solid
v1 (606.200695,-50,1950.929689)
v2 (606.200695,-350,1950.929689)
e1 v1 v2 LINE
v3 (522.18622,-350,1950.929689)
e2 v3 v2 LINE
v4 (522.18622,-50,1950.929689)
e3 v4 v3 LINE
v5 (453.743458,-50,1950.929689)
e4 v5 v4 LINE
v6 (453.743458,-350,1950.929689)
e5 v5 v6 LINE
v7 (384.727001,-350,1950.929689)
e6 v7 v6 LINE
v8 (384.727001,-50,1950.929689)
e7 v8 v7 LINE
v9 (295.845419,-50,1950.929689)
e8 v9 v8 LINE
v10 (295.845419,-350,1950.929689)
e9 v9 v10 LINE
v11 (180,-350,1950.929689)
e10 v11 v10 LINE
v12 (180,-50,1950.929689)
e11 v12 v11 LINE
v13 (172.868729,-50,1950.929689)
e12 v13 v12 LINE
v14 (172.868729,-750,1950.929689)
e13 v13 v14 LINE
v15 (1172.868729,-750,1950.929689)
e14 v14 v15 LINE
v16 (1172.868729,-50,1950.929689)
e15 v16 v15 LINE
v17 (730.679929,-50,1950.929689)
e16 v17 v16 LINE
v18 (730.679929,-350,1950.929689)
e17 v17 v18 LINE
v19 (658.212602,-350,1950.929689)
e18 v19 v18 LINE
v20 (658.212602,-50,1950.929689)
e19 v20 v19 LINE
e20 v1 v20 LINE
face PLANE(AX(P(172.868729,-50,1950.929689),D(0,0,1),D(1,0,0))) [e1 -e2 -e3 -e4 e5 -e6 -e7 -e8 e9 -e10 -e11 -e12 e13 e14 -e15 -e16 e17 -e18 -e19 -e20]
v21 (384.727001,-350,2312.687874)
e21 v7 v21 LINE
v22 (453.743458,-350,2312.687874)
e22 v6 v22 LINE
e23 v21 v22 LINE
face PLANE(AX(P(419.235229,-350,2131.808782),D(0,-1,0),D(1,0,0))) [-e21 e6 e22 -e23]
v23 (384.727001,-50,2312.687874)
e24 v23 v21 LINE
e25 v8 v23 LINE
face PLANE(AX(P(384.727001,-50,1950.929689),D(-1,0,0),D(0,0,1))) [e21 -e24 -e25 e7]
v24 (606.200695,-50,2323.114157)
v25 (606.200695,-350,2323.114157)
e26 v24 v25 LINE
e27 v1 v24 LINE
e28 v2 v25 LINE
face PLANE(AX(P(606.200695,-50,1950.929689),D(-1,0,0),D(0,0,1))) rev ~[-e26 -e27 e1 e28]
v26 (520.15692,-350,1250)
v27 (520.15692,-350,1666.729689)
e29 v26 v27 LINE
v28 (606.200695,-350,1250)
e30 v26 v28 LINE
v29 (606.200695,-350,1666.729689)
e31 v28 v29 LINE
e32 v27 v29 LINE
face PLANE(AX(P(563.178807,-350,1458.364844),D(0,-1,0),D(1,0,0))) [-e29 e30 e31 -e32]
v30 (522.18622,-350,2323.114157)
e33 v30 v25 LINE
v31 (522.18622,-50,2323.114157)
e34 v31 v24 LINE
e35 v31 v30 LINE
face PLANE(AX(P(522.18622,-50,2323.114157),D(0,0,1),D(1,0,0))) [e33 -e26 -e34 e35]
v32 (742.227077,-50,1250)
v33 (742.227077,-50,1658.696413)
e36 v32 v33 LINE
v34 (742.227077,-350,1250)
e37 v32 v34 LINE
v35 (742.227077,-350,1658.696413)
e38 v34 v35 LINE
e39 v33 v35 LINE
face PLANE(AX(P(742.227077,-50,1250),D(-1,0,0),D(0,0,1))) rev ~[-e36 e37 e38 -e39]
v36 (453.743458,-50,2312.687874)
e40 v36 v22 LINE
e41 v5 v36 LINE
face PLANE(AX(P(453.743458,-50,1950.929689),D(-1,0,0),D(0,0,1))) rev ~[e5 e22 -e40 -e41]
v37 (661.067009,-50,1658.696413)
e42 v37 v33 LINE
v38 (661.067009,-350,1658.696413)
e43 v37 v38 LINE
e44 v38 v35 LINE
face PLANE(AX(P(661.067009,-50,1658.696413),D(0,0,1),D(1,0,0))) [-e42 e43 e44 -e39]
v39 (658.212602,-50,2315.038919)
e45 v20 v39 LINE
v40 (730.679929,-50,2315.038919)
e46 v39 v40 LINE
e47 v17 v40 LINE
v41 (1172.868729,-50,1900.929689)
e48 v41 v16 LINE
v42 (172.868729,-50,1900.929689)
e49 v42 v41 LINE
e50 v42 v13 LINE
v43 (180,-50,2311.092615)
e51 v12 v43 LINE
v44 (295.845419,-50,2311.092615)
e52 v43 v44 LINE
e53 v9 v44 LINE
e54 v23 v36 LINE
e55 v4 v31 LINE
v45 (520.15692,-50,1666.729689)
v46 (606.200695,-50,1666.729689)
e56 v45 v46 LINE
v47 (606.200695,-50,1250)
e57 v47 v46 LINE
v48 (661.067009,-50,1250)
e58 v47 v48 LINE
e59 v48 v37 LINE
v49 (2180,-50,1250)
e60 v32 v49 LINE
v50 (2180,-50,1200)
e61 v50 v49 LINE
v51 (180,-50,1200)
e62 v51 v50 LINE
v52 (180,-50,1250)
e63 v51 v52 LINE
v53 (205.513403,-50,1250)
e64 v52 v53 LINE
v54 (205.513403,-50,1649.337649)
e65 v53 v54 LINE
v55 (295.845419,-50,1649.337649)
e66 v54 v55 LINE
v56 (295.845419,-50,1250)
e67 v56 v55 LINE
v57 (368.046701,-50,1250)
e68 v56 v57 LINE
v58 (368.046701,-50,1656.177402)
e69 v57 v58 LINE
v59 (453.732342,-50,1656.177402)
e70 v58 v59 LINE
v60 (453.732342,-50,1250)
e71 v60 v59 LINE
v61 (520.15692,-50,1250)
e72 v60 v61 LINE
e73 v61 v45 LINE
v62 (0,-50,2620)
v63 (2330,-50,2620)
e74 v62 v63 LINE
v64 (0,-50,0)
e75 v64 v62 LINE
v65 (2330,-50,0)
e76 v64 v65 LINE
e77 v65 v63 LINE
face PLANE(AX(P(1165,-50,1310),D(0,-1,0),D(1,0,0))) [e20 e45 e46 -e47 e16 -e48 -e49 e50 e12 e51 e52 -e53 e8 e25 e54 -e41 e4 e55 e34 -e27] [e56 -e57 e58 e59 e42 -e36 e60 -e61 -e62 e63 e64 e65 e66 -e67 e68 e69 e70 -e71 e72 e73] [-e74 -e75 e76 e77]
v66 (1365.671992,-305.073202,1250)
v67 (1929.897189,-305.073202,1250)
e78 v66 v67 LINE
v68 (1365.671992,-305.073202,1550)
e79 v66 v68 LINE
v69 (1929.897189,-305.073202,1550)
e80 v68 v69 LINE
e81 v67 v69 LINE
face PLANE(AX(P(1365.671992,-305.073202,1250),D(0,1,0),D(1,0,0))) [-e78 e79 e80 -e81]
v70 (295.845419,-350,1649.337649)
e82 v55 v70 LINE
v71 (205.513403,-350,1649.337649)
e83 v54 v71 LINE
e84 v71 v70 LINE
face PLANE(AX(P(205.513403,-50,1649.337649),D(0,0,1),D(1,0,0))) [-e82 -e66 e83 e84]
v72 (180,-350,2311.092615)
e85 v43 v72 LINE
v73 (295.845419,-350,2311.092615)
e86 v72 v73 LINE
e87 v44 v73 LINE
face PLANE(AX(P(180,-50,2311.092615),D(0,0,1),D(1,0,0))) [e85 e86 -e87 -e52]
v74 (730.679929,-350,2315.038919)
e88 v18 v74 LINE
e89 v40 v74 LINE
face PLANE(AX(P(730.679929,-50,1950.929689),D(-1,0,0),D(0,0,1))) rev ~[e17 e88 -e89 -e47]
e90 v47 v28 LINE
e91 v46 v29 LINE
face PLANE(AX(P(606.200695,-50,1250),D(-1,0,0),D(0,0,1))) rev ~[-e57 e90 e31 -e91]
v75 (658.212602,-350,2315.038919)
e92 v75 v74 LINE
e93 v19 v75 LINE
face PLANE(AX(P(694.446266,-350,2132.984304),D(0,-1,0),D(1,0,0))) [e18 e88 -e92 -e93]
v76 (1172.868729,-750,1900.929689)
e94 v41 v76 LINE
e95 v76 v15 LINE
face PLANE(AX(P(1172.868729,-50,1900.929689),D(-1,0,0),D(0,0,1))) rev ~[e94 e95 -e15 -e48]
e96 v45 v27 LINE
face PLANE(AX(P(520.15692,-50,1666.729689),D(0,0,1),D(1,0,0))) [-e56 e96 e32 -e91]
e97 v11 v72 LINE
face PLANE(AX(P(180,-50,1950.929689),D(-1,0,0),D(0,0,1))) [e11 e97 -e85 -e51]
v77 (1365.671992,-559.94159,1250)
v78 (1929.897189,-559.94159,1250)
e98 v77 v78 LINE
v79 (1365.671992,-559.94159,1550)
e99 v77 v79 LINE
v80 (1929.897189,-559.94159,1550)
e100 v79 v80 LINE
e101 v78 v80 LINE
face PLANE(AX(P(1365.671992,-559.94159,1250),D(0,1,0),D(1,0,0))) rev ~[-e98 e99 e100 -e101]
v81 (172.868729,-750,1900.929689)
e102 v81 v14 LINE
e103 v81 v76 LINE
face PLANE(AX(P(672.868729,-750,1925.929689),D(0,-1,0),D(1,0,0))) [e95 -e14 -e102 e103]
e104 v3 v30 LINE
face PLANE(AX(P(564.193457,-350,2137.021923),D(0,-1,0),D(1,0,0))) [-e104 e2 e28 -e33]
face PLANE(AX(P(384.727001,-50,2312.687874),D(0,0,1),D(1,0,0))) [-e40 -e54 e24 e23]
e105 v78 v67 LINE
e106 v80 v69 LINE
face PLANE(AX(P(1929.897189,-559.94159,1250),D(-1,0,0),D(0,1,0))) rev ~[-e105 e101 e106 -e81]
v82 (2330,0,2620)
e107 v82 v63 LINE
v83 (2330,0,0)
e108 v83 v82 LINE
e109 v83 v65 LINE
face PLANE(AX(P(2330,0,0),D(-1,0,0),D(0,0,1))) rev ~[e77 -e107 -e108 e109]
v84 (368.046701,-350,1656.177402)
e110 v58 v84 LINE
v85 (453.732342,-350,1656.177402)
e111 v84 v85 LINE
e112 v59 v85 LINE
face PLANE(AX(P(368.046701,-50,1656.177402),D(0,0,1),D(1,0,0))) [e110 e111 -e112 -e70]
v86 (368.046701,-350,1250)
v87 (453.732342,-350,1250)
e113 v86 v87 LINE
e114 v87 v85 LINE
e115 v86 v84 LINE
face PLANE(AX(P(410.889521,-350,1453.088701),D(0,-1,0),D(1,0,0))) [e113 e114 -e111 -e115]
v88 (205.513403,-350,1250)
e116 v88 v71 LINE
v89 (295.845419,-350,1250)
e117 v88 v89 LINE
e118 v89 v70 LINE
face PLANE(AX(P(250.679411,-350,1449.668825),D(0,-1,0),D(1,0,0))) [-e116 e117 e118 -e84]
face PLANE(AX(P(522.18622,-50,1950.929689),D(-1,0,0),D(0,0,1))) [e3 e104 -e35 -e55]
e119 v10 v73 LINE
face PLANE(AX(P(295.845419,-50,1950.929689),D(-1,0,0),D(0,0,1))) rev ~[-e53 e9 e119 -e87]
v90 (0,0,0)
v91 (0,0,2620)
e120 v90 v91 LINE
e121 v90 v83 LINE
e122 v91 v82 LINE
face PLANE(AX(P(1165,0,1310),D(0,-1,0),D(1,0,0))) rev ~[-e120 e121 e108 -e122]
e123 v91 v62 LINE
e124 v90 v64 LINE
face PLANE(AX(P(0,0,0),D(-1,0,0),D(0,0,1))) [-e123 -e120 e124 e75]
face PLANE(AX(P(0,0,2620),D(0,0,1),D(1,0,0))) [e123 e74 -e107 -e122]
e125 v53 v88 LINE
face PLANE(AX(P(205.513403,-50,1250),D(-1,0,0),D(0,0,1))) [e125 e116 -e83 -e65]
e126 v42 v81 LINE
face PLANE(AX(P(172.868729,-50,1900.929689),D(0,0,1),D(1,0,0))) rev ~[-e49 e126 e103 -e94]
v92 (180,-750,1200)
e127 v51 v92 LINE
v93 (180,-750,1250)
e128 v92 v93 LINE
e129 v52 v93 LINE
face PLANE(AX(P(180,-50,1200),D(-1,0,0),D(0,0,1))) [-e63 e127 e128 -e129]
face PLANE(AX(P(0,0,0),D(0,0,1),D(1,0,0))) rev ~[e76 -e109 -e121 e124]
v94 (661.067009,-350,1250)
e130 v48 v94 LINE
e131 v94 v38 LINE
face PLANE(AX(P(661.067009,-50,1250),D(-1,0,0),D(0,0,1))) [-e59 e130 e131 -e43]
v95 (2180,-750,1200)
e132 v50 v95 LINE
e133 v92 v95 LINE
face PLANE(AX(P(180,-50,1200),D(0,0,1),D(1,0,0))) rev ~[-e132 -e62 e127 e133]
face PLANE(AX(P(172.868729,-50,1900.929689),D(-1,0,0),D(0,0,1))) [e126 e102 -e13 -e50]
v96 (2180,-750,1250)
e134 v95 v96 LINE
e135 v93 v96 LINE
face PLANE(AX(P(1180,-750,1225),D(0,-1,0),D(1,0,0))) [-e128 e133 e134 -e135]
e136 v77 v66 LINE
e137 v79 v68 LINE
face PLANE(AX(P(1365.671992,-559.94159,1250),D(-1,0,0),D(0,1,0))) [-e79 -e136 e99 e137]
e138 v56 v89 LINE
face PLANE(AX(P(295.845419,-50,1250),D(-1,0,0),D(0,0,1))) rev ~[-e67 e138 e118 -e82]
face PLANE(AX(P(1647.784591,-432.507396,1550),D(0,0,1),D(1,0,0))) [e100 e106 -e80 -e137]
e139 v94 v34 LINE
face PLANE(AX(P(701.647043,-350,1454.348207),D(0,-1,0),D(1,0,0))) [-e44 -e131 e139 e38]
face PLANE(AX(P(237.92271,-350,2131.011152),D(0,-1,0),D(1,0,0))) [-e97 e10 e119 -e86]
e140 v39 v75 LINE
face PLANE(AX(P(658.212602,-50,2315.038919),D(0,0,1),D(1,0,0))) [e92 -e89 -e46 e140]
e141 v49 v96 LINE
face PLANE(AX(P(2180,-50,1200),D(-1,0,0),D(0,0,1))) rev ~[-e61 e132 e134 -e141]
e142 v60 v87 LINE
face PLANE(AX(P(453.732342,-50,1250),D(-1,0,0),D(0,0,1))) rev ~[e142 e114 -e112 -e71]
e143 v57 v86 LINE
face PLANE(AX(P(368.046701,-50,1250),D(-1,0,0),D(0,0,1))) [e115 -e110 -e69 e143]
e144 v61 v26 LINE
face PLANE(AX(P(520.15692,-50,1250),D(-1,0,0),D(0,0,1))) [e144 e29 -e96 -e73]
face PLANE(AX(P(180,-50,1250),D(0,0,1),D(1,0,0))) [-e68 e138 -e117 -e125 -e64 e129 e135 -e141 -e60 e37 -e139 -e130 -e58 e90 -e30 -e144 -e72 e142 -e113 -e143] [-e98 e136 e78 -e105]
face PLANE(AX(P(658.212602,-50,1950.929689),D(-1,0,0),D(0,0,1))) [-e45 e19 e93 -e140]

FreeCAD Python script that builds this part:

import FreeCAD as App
import Part
import Sketcher

V = App.Vector


def add_polygon(sketch, points):
    """Adds a closed chain of lines whose ends are joined by coincident constraints."""
    first, n = sketch.GeometryCount, len(points)
    for a, b in zip(points, points[1:] + points[:1]):
        sketch.addGeometry(Part.LineSegment(App.Vector(*a, 0), App.Vector(*b, 0)), False)
    for i in range(n):
        sketch.addConstraint(Sketcher.Constraint("Coincident", first + i, 2, first + (i + 1) % n, 1))

doc = App.newDocument("Part")
body = doc.addObject("PartDesign::Body", "Body")

# Sketch on XZ plane
sketch1 = doc.addObject("Sketcher::SketchObject", "Sketch")
body.addObject(sketch1)
sketch1.AttachmentSupport = (doc.XZ_Plane, [""])
sketch1.MapMode = "FlatFace"
add_polygon(sketch1, [(0, 2620), (0, 0), (2330, 0), (2330, 2620)])  # lines 0-3
sketch1.addConstraint(Sketcher.Constraint("Vertical", 0))
sketch1.addConstraint(Sketcher.Constraint("Horizontal", 1))
sketch1.addConstraint(Sketcher.Constraint("Vertical", 2))
sketch1.addConstraint(Sketcher.Constraint("Horizontal", 3))
sketch1.addConstraint(Sketcher.Constraint("Coincident", 0, 2, -1, 1))
sketch1.addConstraint(Sketcher.Constraint("DistanceX", 1, 1, 1, 2, 2330.0))
sketch1.addConstraint(Sketcher.Constraint("DistanceY", 0, 2, 0, 1, 2620.0))
pad1 = doc.addObject("PartDesign::Pad", "Pad")
body.addObject(pad1)
pad1.Profile = sketch1
pad1.Length = 50

# Sketch on XZ plane
sketch2 = doc.addObject("Sketcher::SketchObject", "Sketch001")
body.addObject(sketch2)
sketch2.AttachmentSupport = (doc.XZ_Plane, [""])
sketch2.MapMode = "FlatFace"
sketch2.AttachmentOffset = App.Placement(V(0, 0, 50), App.Rotation())
add_polygon(sketch2, [(180, 1250), (180, 1200), (2180, 1200), (2180, 1250)])  # lines 0-3
sketch2.addConstraint(Sketcher.Constraint("Vertical", 0))
sketch2.addConstraint(Sketcher.Constraint("Horizontal", 1))
sketch2.addConstraint(Sketcher.Constraint("Vertical", 2))
sketch2.addConstraint(Sketcher.Constraint("Horizontal", 3))
sketch2.addConstraint(Sketcher.Constraint("DistanceX", 1, 1, 1, 2, 2000.0))
sketch2.addConstraint(Sketcher.Constraint("DistanceY", 0, 2, 0, 1, 50.0))
sketch2.addConstraint(Sketcher.Constraint("DistanceX", -1, 1, 0, 2, 180.0))
sketch2.addConstraint(Sketcher.Constraint("DistanceY", -1, 1, 0, 2, 1200.0))
pad2 = doc.addObject("PartDesign::Pad", "Pad001")
body.addObject(pad2)
pad2.Profile = sketch2
pad2.Length = 700

# Sketch on XZ plane
sketch3 = doc.addObject("Sketcher::SketchObject", "Sketch002")
body.addObject(sketch3)
sketch3.AttachmentSupport = (doc.XZ_Plane, [""])
sketch3.MapMode = "FlatFace"
sketch3.AttachmentOffset = App.Placement(V(0, 0, 50), App.Rotation())
add_polygon(sketch3, [(173, 1951), (173, 1901), (1173, 1901), (1173, 1951)])  # lines 0-3
sketch3.addConstraint(Sketcher.Constraint("Vertical", 0))
sketch3.addConstraint(Sketcher.Constraint("Horizontal", 1))
sketch3.addConstraint(Sketcher.Constraint("Vertical", 2))
sketch3.addConstraint(Sketcher.Constraint("Horizontal", 3))
sketch3.addConstraint(Sketcher.Constraint("DistanceX", 1, 1, 1, 2, 1000.0))
sketch3.addConstraint(Sketcher.Constraint("DistanceY", 0, 2, 0, 1, 50.0))
sketch3.addConstraint(Sketcher.Constraint("DistanceX", -1, 1, 0, 2, 172.868729))
sketch3.addConstraint(Sketcher.Constraint("DistanceY", -1, 1, 0, 2, 1900.929689))
pad3 = doc.addObject("PartDesign::Pad", "Pad002")
body.addObject(pad3)
pad3.Profile = sketch3
pad3.Length = 700

# Sketch on XZ plane
sketch4 = doc.addObject("Sketcher::SketchObject", "Sketch003")
body.addObject(sketch4)
sketch4.AttachmentSupport = (doc.XZ_Plane, [""])
sketch4.MapMode = "FlatFace"
sketch4.AttachmentOffset = App.Placement(V(0, 0, 50), App.Rotation())
add_polygon(sketch4, [(206, 1649), (206, 1250), (296, 1250), (296, 1649)])  # lines 0-3
add_polygon(sketch4, [(368, 1656), (368, 1250), (454, 1250), (454, 1656)])  # lines 4-7
add_polygon(sketch4, [(520, 1667), (520, 1250), (606, 1250), (606, 1667)])  # lines 8-11
add_polygon(sketch4, [(661, 1659), (661, 1250), (742, 1250), (742, 1659)])  # lines 12-15
add_polygon(sketch4, [(180, 2311), (180, 1951), (296, 1951), (296, 2311)])  # lines 16-19
add_polygon(sketch4, [(385, 2313), (385, 1951), (454, 1951), (454, 2313)])  # lines 20-23
add_polygon(sketch4, [(522, 2323), (522, 1951), (606, 1951), (606, 2323)])  # lines 24-27
add_polygon(sketch4, [(658, 2315), (658, 1951), (731, 1951), (731, 2315)])  # lines 28-31
sketch4.addConstraint(Sketcher.Constraint("Vertical", 0))
sketch4.addConstraint(Sketcher.Constraint("Horizontal", 1))
sketch4.addConstraint(Sketcher.Constraint("Vertical", 2))
sketch4.addConstraint(Sketcher.Constraint("Horizontal", 3))
sketch4.addConstraint(Sketcher.Constraint("Vertical", 4))
sketch4.addConstraint(Sketcher.Constraint("Horizontal", 5))
sketch4.addConstraint(Sketcher.Constraint("Vertical", 6))
sketch4.addConstraint(Sketcher.Constraint("Horizontal", 7))
sketch4.addConstraint(Sketcher.Constraint("Vertical", 8))
sketch4.addConstraint(Sketcher.Constraint("Horizontal", 9))
sketch4.addConstraint(Sketcher.Constraint("Vertical", 10))
sketch4.addConstraint(Sketcher.Constraint("Horizontal", 11))
sketch4.addConstraint(Sketcher.Constraint("Vertical", 12))
sketch4.addConstraint(Sketcher.Constraint("Horizontal", 13))
sketch4.addConstraint(Sketcher.Constraint("Vertical", 14))
sketch4.addConstraint(Sketcher.Constraint("Horizontal", 15))
sketch4.addConstraint(Sketcher.Constraint("Vertical", 16))
sketch4.addConstraint(Sketcher.Constraint("Horizontal", 17))
sketch4.addConstraint(Sketcher.Constraint("Vertical", 18))
sketch4.addConstraint(Sketcher.Constraint("Horizontal", 19))
sketch4.addConstraint(Sketcher.Constraint("Vertical", 20))
sketch4.addConstraint(Sketcher.Constraint("Horizontal", 21))
sketch4.addConstraint(Sketcher.Constraint("Vertical", 22))
sketch4.addConstraint(Sketcher.Constraint("Horizontal", 23))
sketch4.addConstraint(Sketcher.Constraint("Vertical", 24))
sketch4.addConstraint(Sketcher.Constraint("Horizontal", 25))
sketch4.addConstraint(Sketcher.Constraint("Vertical", 26))
sketch4.addConstraint(Sketcher.Constraint("Horizontal", 27))
sketch4.addConstraint(Sketcher.Constraint("Vertical", 28))
sketch4.addConstraint(Sketcher.Constraint("Horizontal", 29))
sketch4.addConstraint(Sketcher.Constraint("Vertical", 30))
sketch4.addConstraint(Sketcher.Constraint("Horizontal", 31))
sketch4.addConstraint(Sketcher.Constraint("Horizontal", 1, 2, 4, 2))
sketch4.addConstraint(Sketcher.Constraint("Horizontal", 5, 2, 8, 2))
sketch4.addConstraint(Sketcher.Constraint("Horizontal", 9, 2, 12, 2))
sketch4.addConstraint(Sketcher.Constraint("Horizontal", 17, 2, 20, 2))
sketch4.addConstraint(Sketcher.Constraint("Horizontal", 21, 2, 24, 2))
sketch4.addConstraint(Sketcher.Constraint("Horizontal", 25, 2, 28, 2))
sketch4.addConstraint(Sketcher.Constraint("Vertical", 2, 2, 17, 2))
sketch4.addConstraint(Sketcher.Constraint("Vertical", 10, 2, 25, 2))
sketch4.addConstraint(Sketcher.Constraint("DistanceY", -1, 1, 0, 2, 1250.0))
sketch4.addConstraint(Sketcher.Constraint("DistanceX", -1, 1, 16, 2, 180.0))
sketch4.addConstraint(Sketcher.Constraint("DistanceY", 11, 2, 16, 2, 284.200001))
sketch4.addConstraint(Sketcher.Constraint("DistanceY", 4, 2, 4, 1, 406.177402))
sketch4.addConstraint(Sketcher.Constraint("DistanceX", -1, 1, 20, 2, 384.727001))
sketch4.addConstraint(Sketcher.Constraint("DistanceX", 5, 1, 5, 2, 85.685641))
sketch4.addConstraint(Sketcher.Constraint("DistanceX", 13, 1, 13, 2, 81.160069))
sketch4.addConstraint(Sketcher.Constraint("DistanceX", 17, 1, 17, 2, 115.845419))
sketch4.addConstraint(Sketcher.Constraint("DistanceY", 0, 2, 0, 1, 399.337649))
sketch4.addConstraint(Sketcher.Constraint("DistanceY", 8, 2, 8, 1, 416.729689))
sketch4.addConstraint(Sketcher.Constraint("DistanceY", 28, 2, 28, 1, 364.10923))
sketch4.addConstraint(Sketcher.Constraint("DistanceX", -1, 1, 4, 2, 368.046701))
sketch4.addConstraint(Sketcher.Constraint("DistanceX", 0, 2, 4, 2, 162.533298))
sketch4.addConstraint(Sketcher.Constraint("DistanceX", 1, 2, 8, 2, 224.311501))
sketch4.addConstraint(Sketcher.Constraint("DistanceX", 17, 2, 24, 2, 226.340801))
sketch4.addConstraint(Sketcher.Constraint("DistanceX", 20, 2, 28, 2, 273.485601))
sketch4.addConstraint(Sketcher.Constraint("DistanceX", 9, 1, 9, 2, 86.043775))
sketch4.addConstraint(Sketcher.Constraint("DistanceX", 21, 1, 21, 2, 69.016457))
sketch4.addConstraint(Sketcher.Constraint("DistanceX", 29, 1, 29, 2, 72.467327))
sketch4.addConstraint(Sketcher.Constraint("DistanceY", 12, 2, 12, 1, 408.696413))
sketch4.addConstraint(Sketcher.Constraint("DistanceY", 16, 2, 16, 1, 360.162926))
sketch4.addConstraint(Sketcher.Constraint("DistanceY", 20, 2, 20, 1, 361.758184))
sketch4.addConstraint(Sketcher.Constraint("DistanceY", 24, 2, 24, 1, 372.184467))
sketch4.addConstraint(Sketcher.Constraint("DistanceX", -1, 1, 12, 2, 661.067009))
pad4 = doc.addObject("PartDesign::Pad", "Pad003")
body.addObject(pad4)
pad4.Profile = sketch4
pad4.Length = 300

# Sketch on XY plane
sketch5 = doc.addObject("Sketcher::SketchObject", "Sketch004")
body.addObject(sketch5)
sketch5.AttachmentSupport = (doc.XY_Plane, [""])
sketch5.MapMode = "FlatFace"
sketch5.AttachmentOffset = App.Placement(V(0, 0, 1250), App.Rotation())
add_polygon(sketch5, [(1366, -305), (1366, -560), (1930, -560), (1930, -305)])  # lines 0-3
sketch5.addConstraint(Sketcher.Constraint("Vertical", 0))
sketch5.addConstraint(Sketcher.Constraint("Horizontal", 1))
sketch5.addConstraint(Sketcher.Constraint("Vertical", 2))
sketch5.addConstraint(Sketcher.Constraint("Horizontal", 3))
sketch5.addConstraint(Sketcher.Constraint("DistanceY", 0, 2, 0, 1, 254.868388))
sketch5.addConstraint(Sketcher.Constraint("DistanceY", 2, 2, -1, 1, 305.073202))
sketch5.addConstraint(Sketcher.Constraint("DistanceX", 1, 1, 1, 2, 564.225197))
sketch5.addConstraint(Sketcher.Constraint("DistanceX", -1, 1, 1, 2, 1929.897189))
pad5 = doc.addObject("PartDesign::Pad", "Pad004")
body.addObject(pad5)
pad5.Profile = sketch5
pad5.Length = 300

doc.recompute()
